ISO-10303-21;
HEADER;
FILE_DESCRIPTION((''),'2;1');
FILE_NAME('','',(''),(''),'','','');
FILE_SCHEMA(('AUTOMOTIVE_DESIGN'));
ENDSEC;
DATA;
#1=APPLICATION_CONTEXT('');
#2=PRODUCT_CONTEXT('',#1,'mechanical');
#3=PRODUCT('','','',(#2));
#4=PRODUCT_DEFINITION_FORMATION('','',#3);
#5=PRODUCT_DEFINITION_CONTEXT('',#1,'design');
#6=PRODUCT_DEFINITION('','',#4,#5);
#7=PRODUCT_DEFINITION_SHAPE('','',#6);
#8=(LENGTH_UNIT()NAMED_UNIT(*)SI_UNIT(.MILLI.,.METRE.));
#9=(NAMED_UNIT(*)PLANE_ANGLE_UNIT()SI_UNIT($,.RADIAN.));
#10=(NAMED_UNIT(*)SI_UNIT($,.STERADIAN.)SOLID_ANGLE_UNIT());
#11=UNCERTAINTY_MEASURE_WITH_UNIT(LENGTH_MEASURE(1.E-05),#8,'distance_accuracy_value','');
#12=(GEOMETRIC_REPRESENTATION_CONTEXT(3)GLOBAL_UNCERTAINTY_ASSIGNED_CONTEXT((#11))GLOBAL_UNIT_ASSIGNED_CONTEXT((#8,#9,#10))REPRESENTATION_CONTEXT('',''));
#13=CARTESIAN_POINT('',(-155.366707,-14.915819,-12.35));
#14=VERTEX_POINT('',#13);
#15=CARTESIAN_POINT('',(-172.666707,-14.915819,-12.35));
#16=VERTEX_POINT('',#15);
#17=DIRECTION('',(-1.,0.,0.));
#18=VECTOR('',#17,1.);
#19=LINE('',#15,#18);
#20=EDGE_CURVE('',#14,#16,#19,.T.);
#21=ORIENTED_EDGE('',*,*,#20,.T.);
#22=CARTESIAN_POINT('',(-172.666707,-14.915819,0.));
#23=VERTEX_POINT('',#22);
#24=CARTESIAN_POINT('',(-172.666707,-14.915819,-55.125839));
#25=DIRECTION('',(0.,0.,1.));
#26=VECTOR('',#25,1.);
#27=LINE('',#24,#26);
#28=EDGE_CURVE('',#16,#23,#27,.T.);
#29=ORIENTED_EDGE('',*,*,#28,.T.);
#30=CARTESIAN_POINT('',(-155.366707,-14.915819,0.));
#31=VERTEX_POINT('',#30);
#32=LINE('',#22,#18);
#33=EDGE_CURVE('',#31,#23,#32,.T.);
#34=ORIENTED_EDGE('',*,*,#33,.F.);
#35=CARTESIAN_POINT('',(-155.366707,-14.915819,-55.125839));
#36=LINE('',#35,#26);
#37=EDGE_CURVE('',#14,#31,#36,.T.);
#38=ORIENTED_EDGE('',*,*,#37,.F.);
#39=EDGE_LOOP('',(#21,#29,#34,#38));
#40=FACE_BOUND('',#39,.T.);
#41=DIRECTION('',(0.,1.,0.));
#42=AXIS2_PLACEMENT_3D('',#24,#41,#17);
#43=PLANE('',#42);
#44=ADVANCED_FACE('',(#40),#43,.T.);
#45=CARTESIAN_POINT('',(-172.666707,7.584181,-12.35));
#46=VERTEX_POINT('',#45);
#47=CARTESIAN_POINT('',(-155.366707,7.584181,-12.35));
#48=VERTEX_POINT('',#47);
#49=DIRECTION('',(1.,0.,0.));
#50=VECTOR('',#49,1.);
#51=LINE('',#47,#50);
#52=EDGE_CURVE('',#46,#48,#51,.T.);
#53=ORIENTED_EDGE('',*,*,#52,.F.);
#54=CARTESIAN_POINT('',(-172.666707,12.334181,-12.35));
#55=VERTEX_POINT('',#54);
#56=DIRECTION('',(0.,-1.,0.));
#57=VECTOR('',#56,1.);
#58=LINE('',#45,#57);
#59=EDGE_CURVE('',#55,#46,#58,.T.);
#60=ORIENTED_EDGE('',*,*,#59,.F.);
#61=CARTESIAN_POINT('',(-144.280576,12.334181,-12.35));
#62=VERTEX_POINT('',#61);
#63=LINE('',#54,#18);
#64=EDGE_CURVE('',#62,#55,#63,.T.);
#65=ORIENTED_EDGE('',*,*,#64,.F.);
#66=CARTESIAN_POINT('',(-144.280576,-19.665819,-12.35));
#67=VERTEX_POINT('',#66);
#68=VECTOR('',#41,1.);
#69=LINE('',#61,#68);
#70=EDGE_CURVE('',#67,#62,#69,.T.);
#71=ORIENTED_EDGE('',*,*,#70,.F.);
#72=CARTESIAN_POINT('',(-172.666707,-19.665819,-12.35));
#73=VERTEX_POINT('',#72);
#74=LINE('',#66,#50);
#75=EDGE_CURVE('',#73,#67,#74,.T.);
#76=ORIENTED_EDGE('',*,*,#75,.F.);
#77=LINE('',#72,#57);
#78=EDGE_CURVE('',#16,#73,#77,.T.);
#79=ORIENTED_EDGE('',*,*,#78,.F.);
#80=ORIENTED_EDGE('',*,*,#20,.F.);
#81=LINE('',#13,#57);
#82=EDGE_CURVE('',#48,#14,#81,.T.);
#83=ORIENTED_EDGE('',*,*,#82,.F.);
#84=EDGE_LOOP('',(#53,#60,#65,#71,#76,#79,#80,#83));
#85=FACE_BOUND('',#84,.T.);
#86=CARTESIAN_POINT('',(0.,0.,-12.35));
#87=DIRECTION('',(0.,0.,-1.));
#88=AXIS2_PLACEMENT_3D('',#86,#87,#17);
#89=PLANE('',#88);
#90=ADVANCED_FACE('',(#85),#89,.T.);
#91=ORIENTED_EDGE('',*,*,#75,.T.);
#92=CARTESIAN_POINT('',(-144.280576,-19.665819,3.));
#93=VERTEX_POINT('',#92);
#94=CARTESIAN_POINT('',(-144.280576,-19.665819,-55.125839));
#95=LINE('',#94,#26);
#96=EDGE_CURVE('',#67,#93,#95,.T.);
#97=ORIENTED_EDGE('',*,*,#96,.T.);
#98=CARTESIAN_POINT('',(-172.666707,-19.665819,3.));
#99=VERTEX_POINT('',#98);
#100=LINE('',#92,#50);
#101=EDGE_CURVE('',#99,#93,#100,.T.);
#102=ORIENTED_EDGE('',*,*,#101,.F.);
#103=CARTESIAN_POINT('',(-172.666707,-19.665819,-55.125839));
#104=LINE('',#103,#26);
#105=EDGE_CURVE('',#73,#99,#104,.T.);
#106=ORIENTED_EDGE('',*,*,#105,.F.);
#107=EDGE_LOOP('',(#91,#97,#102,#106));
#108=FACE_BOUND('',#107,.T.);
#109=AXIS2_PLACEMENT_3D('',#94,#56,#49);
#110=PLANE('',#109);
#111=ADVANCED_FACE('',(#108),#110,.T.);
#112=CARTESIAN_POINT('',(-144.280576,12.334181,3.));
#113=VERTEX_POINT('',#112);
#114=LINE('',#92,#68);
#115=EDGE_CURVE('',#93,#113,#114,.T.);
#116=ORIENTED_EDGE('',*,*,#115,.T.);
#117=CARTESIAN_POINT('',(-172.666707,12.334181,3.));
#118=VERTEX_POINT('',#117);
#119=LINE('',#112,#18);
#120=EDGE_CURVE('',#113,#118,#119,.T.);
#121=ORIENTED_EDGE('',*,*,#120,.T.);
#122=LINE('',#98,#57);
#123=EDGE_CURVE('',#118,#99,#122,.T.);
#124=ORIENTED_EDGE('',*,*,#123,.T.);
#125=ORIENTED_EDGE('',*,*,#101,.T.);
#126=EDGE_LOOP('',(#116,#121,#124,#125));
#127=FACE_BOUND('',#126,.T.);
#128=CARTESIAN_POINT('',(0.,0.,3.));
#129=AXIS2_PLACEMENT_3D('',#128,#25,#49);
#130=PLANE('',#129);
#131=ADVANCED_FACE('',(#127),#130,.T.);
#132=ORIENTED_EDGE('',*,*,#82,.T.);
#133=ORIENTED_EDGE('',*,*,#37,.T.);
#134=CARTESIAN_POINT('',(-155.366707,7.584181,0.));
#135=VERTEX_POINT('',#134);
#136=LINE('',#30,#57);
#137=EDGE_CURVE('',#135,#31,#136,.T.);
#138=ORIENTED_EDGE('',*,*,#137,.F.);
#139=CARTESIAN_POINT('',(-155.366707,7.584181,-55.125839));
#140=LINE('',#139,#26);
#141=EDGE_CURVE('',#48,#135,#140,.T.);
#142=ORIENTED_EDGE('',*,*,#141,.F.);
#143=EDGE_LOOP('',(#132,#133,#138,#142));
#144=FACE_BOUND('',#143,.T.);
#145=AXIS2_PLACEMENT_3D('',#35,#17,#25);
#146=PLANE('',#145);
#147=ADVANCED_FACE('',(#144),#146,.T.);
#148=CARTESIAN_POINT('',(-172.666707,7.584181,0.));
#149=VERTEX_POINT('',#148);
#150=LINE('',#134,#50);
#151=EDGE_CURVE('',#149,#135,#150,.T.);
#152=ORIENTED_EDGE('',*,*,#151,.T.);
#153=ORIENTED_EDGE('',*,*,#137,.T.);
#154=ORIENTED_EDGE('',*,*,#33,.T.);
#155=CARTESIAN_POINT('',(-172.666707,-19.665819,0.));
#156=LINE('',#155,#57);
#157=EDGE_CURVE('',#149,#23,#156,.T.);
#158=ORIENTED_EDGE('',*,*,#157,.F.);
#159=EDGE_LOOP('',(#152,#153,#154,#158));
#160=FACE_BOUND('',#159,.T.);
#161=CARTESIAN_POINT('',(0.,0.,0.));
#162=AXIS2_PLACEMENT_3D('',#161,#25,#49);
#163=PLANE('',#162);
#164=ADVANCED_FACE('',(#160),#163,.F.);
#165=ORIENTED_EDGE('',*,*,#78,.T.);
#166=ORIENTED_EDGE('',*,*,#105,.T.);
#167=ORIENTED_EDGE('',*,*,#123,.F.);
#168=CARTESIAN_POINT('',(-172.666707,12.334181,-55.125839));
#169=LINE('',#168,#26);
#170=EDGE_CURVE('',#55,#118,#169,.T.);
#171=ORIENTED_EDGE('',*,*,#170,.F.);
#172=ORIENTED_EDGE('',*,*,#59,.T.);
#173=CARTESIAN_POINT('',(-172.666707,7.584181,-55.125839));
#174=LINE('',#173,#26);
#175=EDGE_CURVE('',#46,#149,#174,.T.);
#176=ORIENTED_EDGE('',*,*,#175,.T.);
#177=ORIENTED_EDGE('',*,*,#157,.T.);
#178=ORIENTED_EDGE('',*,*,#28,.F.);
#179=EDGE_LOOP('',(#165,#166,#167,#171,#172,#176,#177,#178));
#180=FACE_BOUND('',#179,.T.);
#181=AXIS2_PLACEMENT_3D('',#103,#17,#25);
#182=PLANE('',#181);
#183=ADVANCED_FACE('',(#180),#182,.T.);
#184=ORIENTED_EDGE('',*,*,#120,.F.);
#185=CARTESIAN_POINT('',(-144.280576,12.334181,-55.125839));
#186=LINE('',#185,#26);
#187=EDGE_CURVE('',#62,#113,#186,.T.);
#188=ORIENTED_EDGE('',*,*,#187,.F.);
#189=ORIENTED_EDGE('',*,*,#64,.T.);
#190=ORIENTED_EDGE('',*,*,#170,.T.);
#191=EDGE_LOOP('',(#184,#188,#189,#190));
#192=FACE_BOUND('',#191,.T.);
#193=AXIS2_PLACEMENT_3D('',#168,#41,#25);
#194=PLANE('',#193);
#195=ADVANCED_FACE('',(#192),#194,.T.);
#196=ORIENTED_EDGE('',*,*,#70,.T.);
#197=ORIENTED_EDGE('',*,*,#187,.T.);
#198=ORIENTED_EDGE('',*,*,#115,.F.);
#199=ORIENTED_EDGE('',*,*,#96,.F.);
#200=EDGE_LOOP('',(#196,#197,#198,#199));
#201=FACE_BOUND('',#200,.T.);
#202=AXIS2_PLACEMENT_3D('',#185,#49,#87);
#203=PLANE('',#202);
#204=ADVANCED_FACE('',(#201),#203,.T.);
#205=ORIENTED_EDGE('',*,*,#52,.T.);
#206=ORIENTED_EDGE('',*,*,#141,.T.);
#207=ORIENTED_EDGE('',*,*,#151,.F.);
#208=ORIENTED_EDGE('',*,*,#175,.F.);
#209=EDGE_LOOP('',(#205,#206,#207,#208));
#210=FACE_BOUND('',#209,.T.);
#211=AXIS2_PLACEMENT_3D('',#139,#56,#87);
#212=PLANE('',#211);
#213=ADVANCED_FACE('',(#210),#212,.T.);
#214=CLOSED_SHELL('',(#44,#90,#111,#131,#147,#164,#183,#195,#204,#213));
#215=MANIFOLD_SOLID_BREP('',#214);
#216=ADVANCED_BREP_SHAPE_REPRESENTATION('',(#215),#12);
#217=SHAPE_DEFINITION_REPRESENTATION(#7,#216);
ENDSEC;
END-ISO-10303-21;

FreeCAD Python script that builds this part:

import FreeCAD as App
import Part
import Sketcher

V = App.Vector
Q = App.Units.Quantity


def add_polygon(sketch, points):
    """Adds a closed chain of lines whose ends are joined by coincident constraints."""
    first, n = sketch.GeometryCount, len(points)
    for a, b in zip(points, points[1:] + points[:1]):
        sketch.addGeometry(Part.LineSegment(App.Vector(*a, 0), App.Vector(*b, 0)), False)
    for i in range(n):
        sketch.addConstraint(Sketcher.Constraint("Coincident", first + i, 2, first + (i + 1) % n, 1))

doc = App.newDocument("Part")
body = doc.addObject("PartDesign::Body", "Body")

sketch1 = body.newObject("Sketcher::SketchObject", "Sketch")
sketch1.AttachmentSupport = (doc.getObject("XY_Plane"), [""])
sketch1.MapMode = "FlatFace"
add_polygon(sketch1, [(-172.7, 7.6), (-155.4, 7.6), (-155.4, -14.9), (-172.7, -14.9), (-172.7, -19.7), (-144.3, -19.7), (-144.3, 12.3), (-172.7, 12.3)])
sketch1.addConstraint([
    Sketcher.Constraint("Horizontal", 0),
    Sketcher.Constraint("Vertical", 1),
    Sketcher.Constraint("Horizontal", 2),
    Sketcher.Constraint("Vertical", 3),
    Sketcher.Constraint("Horizontal", 4),
    Sketcher.Constraint("Vertical", 5),
    Sketcher.Constraint("Horizontal", 6),
    Sketcher.Constraint("Vertical", 7),
    Sketcher.Constraint("Vertical", 3, 2, 6, 2),
    Sketcher.Constraint("Equal", 3, 7),
    Sketcher.Constraint("DistanceY", 5, 1, 5, 2, Q("32 mm")),
    Sketcher.Constraint("DistanceX", 0, 1, 0, 2, Q("17.3 mm")),
    Sketcher.Constraint("DistanceY", 1, 2, 1, 1, Q("22.5 mm")),
    Sketcher.Constraint("DistanceX", 4, 1, 4, 2, Q("28.386131 mm")),
    Sketcher.Constraint("DistanceY", -1, 1, 0, 2, Q("7.584181 mm")),
    Sketcher.Constraint("DistanceX", 0, 2, -1, 1, Q("155.366707 mm")),
])
pad1 = body.newObject("PartDesign::Pad", "Pad")
pad1.Profile = sketch1
pad1.Length = 12.35
pad1.Reversed = True

sketch2 = body.newObject("Sketcher::SketchObject", "Sketch001")
sketch2.AttachmentSupport = (doc.getObject("XY_Plane"), [""])
sketch2.MapMode = "FlatFace"
add_polygon(sketch2, [(-173, 12), (-173, -20), (-144, -20), (-144, 12)])
sketch2.addConstraint([
    Sketcher.Constraint("Vertical", 0),
    Sketcher.Constraint("Horizontal", 1),
    Sketcher.Constraint("Vertical", 2),
    Sketcher.Constraint("Horizontal", 3),
    Sketcher.Constraint("DistanceY", 0, 2, 0, 1, Q("32 mm")),
    Sketcher.Constraint("DistanceX", 1, 1, 1, 2, Q("28.386131 mm")),
    Sketcher.Constraint("DistanceY", 0, 2, -1, 1, Q("19.665819 mm")),
    Sketcher.Constraint("DistanceX", 0, 2, -1, 1, Q("172.666707 mm")),
])
pad2 = body.newObject("PartDesign::Pad", "Pad001")
pad2.Profile = sketch2
pad2.Length = 3

doc.recompute()
